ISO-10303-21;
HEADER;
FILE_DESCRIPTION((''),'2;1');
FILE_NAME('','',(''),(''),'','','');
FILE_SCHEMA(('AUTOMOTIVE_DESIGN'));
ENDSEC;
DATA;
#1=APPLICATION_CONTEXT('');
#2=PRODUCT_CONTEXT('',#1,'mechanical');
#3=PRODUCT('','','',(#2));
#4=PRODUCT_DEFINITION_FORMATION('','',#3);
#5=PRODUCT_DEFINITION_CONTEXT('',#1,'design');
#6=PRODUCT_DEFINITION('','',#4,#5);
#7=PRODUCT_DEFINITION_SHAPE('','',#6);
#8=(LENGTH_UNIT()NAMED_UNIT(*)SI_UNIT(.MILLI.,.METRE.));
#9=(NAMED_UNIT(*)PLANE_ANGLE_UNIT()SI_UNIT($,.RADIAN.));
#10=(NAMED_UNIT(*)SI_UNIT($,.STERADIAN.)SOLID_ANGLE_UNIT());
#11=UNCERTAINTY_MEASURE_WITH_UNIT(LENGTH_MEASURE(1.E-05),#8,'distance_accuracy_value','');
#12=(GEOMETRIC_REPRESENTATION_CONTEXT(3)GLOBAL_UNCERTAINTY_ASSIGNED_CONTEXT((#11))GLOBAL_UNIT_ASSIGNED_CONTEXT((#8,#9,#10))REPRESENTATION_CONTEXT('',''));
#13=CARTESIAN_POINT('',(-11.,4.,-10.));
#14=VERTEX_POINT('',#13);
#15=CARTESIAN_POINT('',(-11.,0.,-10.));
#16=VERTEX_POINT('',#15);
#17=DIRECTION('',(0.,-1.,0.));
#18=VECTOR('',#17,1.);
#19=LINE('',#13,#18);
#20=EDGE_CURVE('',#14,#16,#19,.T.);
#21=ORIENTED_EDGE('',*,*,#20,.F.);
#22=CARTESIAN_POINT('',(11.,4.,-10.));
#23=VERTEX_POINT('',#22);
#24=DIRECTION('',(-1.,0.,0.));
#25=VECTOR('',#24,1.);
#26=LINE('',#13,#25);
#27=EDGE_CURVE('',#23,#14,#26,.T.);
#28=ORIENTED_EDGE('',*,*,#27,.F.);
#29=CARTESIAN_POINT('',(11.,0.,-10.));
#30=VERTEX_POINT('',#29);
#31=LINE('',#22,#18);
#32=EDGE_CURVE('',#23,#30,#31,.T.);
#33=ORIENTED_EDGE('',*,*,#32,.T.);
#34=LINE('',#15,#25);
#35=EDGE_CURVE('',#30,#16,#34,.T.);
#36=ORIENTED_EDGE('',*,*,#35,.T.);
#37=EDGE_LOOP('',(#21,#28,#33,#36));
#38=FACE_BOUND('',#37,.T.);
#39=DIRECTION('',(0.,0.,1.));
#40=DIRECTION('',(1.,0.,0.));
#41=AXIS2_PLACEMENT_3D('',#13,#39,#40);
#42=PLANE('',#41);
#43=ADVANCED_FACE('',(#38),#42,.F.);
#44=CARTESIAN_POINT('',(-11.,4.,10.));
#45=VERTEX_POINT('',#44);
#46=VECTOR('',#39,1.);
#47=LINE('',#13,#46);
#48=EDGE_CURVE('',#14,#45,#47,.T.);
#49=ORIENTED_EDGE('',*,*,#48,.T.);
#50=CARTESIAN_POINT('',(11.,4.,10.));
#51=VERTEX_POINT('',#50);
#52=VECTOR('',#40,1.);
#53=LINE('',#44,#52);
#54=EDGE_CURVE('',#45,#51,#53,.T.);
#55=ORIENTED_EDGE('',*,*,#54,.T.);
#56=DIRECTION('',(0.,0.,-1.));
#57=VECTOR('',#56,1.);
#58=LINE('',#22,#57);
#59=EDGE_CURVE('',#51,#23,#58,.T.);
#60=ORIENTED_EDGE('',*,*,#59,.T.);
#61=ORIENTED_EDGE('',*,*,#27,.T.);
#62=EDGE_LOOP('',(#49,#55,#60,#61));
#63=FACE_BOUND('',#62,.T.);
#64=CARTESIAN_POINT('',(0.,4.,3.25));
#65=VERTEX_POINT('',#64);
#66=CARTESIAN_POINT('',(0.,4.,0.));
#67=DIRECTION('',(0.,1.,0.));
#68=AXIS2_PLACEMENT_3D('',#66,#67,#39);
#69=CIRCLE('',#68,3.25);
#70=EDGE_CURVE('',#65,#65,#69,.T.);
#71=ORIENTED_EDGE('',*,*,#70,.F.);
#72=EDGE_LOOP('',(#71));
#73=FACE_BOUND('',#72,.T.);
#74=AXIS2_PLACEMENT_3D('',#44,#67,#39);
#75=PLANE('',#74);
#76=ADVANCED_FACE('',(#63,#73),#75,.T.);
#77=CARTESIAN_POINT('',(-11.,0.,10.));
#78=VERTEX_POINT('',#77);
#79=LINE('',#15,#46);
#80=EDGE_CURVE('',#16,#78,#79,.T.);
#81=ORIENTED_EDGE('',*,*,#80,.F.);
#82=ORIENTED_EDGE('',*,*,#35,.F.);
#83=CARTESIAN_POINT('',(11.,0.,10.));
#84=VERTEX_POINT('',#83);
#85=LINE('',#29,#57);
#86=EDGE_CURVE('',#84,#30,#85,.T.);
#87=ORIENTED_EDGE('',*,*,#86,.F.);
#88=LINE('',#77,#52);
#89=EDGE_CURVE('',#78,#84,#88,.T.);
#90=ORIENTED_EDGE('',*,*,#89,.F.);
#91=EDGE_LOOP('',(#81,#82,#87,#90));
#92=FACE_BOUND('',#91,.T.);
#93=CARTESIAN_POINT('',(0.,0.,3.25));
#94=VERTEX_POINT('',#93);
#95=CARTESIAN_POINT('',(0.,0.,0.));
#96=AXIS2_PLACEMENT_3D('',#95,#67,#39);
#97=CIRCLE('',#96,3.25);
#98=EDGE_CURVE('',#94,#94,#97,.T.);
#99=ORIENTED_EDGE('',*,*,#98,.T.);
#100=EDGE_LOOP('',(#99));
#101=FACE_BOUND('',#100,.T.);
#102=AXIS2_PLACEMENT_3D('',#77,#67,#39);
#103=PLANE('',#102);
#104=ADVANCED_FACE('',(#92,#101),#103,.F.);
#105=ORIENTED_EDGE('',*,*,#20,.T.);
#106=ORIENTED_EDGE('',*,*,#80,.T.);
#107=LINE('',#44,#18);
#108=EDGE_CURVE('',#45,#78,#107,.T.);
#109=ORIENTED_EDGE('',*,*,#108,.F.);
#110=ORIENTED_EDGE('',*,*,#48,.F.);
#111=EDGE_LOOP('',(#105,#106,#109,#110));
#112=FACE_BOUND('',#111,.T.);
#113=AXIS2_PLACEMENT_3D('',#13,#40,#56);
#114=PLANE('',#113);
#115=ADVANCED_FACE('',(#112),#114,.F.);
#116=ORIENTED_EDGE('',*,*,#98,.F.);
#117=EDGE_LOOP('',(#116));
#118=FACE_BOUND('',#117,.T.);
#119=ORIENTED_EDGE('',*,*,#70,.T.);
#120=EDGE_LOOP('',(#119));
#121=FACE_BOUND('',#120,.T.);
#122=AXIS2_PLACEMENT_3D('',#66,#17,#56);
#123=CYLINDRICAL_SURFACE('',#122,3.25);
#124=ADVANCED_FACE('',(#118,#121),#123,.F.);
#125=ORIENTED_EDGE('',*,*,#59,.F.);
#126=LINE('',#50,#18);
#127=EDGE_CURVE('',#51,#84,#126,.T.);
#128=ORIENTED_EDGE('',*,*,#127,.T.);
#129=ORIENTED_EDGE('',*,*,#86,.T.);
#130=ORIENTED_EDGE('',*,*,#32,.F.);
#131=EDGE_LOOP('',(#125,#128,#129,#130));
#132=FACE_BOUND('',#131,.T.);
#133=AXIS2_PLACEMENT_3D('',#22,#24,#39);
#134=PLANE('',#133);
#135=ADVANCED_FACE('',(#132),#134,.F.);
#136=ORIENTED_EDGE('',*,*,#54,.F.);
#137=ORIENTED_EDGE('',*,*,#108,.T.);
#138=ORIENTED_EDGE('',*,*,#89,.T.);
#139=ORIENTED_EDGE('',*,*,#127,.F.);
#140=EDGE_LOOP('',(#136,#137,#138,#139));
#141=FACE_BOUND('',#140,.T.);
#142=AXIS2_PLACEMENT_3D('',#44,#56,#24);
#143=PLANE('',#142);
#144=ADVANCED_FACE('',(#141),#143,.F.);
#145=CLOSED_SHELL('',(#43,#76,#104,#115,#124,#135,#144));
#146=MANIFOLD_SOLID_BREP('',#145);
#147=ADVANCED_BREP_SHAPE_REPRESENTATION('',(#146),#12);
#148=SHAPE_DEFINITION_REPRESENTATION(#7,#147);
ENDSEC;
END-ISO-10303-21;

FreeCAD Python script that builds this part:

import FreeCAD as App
import Part
import Sketcher

V = App.Vector

doc = App.newDocument("Part")
params = doc.addObject("Spreadsheet::Sheet", "Params")
for row, (alias, value) in enumerate([
    ("sketch1_diameter", "6.5 mm"),
    ("sketch1_width", "22 mm"),
    ("sketch1_height", "20 mm"),
    ("pad1_length", "4 mm"),
], start=1):
    params.set(f"A{row}", alias)
    params.set(f"B{row}", "=" + value)
    params.setAlias(f"B{row}", alias)

body = doc.addObject("PartDesign::Body", "Body")

sketch1 = doc.addObject("Sketcher::SketchObject", "Sketch")
body.addObject(sketch1)
sketch1.AttachmentSupport = (doc.XZ_Plane, [""])
sketch1.MapMode = "FlatFace"
sketch1.addGeometry([
    Part.LineSegment(V(-11, -10, 0), V(-11, 10, 0)),
    Part.LineSegment(V(-11, 10, 0), V(11, 10, 0)),
    Part.LineSegment(V(11, 10, 0), V(11, -10, 0)),
    Part.LineSegment(V(11, -10, 0), V(-11, -10, 0)),
    Part.Circle(V(0, 0, 0), V(0, 0, 1), 3.2),
], False)
sketch1.addConstraint([
    Sketcher.Constraint("Coincident", 0, 2, 1, 1),
    Sketcher.Constraint("Coincident", 1, 2, 2, 1),
    Sketcher.Constraint("Coincident", 2, 2, 3, 1),
    Sketcher.Constraint("Coincident", 3, 2, 0, 1),
    Sketcher.Constraint("Vertical", 0),
    Sketcher.Constraint("Horizontal", 1),
    Sketcher.Constraint("Vertical", 2),
    Sketcher.Constraint("Horizontal", 3),
    Sketcher.Constraint("Coincident", 4, 3, -1, 1),
    Sketcher.Constraint("Symmetric", 0, 2, 2, 2, -1, 1),
    Sketcher.Constraint("Diameter", 4, 6.5),
    Sketcher.Constraint("DistanceX", 1, 1, 1, 2, 22.0),
    Sketcher.Constraint("DistanceY", 0, 1, 0, 2, 20.0),
])
sketch1.setExpression("Constraints[10]", "Params.sketch1_diameter")
sketch1.setExpression("Constraints[11]", "Params.sketch1_width")
sketch1.setExpression("Constraints[12]", "Params.sketch1_height")
pad1 = doc.addObject("PartDesign::Pad", "Pad")
body.addObject(pad1)
pad1.Profile = sketch1
pad1.setExpression("Length", "Params.pad1_length")
pad1.Reversed = True

doc.recompute()
